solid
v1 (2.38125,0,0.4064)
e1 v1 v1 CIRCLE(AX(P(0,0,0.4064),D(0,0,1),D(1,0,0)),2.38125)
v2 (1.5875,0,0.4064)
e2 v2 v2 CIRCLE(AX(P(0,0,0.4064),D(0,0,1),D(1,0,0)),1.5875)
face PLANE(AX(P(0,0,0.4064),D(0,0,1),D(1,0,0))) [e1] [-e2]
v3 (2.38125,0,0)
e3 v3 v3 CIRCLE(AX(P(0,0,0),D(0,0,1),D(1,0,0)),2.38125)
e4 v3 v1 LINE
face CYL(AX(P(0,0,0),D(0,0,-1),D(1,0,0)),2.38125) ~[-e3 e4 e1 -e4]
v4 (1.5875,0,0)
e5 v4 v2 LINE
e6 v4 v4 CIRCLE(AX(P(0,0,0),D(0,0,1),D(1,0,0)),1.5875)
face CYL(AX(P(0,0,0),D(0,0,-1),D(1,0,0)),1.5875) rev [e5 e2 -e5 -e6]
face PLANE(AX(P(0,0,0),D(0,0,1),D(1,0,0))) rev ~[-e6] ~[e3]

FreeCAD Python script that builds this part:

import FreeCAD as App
import Part
import Sketcher

V = App.Vector
Q = App.Units.Quantity

doc = App.newDocument("Part")
body = doc.addObject("PartDesign::Body", "Body")

# Sketch on XY plane
sketch1 = body.newObject("Sketcher::SketchObject", "Sketch")
sketch1.AttachmentSupport = (doc.getObject("XY_Plane"), [""])
sketch1.MapMode = "FlatFace"
sketch1.addGeometry([
    Part.Circle(V(0, 0, 0), V(0, 0, 1), 2.4),
    Part.Circle(V(0, 0, 0), V(0, 0, 1), 1.6),
], False)
sketch1.addConstraint([
    Sketcher.Constraint("Coincident", 0, 3, -1, 1),
    Sketcher.Constraint("Coincident", 1, 3, -1, 1),
    Sketcher.Constraint("Diameter", 0, Q("0.1875 in")),
    Sketcher.Constraint("Diameter", 1, Q("0.125 in")),
])
pad1 = body.newObject("PartDesign::Pad", "Pad")
pad1.Profile = sketch1
pad1.Length = Q("0.016 in")

doc.recompute()
